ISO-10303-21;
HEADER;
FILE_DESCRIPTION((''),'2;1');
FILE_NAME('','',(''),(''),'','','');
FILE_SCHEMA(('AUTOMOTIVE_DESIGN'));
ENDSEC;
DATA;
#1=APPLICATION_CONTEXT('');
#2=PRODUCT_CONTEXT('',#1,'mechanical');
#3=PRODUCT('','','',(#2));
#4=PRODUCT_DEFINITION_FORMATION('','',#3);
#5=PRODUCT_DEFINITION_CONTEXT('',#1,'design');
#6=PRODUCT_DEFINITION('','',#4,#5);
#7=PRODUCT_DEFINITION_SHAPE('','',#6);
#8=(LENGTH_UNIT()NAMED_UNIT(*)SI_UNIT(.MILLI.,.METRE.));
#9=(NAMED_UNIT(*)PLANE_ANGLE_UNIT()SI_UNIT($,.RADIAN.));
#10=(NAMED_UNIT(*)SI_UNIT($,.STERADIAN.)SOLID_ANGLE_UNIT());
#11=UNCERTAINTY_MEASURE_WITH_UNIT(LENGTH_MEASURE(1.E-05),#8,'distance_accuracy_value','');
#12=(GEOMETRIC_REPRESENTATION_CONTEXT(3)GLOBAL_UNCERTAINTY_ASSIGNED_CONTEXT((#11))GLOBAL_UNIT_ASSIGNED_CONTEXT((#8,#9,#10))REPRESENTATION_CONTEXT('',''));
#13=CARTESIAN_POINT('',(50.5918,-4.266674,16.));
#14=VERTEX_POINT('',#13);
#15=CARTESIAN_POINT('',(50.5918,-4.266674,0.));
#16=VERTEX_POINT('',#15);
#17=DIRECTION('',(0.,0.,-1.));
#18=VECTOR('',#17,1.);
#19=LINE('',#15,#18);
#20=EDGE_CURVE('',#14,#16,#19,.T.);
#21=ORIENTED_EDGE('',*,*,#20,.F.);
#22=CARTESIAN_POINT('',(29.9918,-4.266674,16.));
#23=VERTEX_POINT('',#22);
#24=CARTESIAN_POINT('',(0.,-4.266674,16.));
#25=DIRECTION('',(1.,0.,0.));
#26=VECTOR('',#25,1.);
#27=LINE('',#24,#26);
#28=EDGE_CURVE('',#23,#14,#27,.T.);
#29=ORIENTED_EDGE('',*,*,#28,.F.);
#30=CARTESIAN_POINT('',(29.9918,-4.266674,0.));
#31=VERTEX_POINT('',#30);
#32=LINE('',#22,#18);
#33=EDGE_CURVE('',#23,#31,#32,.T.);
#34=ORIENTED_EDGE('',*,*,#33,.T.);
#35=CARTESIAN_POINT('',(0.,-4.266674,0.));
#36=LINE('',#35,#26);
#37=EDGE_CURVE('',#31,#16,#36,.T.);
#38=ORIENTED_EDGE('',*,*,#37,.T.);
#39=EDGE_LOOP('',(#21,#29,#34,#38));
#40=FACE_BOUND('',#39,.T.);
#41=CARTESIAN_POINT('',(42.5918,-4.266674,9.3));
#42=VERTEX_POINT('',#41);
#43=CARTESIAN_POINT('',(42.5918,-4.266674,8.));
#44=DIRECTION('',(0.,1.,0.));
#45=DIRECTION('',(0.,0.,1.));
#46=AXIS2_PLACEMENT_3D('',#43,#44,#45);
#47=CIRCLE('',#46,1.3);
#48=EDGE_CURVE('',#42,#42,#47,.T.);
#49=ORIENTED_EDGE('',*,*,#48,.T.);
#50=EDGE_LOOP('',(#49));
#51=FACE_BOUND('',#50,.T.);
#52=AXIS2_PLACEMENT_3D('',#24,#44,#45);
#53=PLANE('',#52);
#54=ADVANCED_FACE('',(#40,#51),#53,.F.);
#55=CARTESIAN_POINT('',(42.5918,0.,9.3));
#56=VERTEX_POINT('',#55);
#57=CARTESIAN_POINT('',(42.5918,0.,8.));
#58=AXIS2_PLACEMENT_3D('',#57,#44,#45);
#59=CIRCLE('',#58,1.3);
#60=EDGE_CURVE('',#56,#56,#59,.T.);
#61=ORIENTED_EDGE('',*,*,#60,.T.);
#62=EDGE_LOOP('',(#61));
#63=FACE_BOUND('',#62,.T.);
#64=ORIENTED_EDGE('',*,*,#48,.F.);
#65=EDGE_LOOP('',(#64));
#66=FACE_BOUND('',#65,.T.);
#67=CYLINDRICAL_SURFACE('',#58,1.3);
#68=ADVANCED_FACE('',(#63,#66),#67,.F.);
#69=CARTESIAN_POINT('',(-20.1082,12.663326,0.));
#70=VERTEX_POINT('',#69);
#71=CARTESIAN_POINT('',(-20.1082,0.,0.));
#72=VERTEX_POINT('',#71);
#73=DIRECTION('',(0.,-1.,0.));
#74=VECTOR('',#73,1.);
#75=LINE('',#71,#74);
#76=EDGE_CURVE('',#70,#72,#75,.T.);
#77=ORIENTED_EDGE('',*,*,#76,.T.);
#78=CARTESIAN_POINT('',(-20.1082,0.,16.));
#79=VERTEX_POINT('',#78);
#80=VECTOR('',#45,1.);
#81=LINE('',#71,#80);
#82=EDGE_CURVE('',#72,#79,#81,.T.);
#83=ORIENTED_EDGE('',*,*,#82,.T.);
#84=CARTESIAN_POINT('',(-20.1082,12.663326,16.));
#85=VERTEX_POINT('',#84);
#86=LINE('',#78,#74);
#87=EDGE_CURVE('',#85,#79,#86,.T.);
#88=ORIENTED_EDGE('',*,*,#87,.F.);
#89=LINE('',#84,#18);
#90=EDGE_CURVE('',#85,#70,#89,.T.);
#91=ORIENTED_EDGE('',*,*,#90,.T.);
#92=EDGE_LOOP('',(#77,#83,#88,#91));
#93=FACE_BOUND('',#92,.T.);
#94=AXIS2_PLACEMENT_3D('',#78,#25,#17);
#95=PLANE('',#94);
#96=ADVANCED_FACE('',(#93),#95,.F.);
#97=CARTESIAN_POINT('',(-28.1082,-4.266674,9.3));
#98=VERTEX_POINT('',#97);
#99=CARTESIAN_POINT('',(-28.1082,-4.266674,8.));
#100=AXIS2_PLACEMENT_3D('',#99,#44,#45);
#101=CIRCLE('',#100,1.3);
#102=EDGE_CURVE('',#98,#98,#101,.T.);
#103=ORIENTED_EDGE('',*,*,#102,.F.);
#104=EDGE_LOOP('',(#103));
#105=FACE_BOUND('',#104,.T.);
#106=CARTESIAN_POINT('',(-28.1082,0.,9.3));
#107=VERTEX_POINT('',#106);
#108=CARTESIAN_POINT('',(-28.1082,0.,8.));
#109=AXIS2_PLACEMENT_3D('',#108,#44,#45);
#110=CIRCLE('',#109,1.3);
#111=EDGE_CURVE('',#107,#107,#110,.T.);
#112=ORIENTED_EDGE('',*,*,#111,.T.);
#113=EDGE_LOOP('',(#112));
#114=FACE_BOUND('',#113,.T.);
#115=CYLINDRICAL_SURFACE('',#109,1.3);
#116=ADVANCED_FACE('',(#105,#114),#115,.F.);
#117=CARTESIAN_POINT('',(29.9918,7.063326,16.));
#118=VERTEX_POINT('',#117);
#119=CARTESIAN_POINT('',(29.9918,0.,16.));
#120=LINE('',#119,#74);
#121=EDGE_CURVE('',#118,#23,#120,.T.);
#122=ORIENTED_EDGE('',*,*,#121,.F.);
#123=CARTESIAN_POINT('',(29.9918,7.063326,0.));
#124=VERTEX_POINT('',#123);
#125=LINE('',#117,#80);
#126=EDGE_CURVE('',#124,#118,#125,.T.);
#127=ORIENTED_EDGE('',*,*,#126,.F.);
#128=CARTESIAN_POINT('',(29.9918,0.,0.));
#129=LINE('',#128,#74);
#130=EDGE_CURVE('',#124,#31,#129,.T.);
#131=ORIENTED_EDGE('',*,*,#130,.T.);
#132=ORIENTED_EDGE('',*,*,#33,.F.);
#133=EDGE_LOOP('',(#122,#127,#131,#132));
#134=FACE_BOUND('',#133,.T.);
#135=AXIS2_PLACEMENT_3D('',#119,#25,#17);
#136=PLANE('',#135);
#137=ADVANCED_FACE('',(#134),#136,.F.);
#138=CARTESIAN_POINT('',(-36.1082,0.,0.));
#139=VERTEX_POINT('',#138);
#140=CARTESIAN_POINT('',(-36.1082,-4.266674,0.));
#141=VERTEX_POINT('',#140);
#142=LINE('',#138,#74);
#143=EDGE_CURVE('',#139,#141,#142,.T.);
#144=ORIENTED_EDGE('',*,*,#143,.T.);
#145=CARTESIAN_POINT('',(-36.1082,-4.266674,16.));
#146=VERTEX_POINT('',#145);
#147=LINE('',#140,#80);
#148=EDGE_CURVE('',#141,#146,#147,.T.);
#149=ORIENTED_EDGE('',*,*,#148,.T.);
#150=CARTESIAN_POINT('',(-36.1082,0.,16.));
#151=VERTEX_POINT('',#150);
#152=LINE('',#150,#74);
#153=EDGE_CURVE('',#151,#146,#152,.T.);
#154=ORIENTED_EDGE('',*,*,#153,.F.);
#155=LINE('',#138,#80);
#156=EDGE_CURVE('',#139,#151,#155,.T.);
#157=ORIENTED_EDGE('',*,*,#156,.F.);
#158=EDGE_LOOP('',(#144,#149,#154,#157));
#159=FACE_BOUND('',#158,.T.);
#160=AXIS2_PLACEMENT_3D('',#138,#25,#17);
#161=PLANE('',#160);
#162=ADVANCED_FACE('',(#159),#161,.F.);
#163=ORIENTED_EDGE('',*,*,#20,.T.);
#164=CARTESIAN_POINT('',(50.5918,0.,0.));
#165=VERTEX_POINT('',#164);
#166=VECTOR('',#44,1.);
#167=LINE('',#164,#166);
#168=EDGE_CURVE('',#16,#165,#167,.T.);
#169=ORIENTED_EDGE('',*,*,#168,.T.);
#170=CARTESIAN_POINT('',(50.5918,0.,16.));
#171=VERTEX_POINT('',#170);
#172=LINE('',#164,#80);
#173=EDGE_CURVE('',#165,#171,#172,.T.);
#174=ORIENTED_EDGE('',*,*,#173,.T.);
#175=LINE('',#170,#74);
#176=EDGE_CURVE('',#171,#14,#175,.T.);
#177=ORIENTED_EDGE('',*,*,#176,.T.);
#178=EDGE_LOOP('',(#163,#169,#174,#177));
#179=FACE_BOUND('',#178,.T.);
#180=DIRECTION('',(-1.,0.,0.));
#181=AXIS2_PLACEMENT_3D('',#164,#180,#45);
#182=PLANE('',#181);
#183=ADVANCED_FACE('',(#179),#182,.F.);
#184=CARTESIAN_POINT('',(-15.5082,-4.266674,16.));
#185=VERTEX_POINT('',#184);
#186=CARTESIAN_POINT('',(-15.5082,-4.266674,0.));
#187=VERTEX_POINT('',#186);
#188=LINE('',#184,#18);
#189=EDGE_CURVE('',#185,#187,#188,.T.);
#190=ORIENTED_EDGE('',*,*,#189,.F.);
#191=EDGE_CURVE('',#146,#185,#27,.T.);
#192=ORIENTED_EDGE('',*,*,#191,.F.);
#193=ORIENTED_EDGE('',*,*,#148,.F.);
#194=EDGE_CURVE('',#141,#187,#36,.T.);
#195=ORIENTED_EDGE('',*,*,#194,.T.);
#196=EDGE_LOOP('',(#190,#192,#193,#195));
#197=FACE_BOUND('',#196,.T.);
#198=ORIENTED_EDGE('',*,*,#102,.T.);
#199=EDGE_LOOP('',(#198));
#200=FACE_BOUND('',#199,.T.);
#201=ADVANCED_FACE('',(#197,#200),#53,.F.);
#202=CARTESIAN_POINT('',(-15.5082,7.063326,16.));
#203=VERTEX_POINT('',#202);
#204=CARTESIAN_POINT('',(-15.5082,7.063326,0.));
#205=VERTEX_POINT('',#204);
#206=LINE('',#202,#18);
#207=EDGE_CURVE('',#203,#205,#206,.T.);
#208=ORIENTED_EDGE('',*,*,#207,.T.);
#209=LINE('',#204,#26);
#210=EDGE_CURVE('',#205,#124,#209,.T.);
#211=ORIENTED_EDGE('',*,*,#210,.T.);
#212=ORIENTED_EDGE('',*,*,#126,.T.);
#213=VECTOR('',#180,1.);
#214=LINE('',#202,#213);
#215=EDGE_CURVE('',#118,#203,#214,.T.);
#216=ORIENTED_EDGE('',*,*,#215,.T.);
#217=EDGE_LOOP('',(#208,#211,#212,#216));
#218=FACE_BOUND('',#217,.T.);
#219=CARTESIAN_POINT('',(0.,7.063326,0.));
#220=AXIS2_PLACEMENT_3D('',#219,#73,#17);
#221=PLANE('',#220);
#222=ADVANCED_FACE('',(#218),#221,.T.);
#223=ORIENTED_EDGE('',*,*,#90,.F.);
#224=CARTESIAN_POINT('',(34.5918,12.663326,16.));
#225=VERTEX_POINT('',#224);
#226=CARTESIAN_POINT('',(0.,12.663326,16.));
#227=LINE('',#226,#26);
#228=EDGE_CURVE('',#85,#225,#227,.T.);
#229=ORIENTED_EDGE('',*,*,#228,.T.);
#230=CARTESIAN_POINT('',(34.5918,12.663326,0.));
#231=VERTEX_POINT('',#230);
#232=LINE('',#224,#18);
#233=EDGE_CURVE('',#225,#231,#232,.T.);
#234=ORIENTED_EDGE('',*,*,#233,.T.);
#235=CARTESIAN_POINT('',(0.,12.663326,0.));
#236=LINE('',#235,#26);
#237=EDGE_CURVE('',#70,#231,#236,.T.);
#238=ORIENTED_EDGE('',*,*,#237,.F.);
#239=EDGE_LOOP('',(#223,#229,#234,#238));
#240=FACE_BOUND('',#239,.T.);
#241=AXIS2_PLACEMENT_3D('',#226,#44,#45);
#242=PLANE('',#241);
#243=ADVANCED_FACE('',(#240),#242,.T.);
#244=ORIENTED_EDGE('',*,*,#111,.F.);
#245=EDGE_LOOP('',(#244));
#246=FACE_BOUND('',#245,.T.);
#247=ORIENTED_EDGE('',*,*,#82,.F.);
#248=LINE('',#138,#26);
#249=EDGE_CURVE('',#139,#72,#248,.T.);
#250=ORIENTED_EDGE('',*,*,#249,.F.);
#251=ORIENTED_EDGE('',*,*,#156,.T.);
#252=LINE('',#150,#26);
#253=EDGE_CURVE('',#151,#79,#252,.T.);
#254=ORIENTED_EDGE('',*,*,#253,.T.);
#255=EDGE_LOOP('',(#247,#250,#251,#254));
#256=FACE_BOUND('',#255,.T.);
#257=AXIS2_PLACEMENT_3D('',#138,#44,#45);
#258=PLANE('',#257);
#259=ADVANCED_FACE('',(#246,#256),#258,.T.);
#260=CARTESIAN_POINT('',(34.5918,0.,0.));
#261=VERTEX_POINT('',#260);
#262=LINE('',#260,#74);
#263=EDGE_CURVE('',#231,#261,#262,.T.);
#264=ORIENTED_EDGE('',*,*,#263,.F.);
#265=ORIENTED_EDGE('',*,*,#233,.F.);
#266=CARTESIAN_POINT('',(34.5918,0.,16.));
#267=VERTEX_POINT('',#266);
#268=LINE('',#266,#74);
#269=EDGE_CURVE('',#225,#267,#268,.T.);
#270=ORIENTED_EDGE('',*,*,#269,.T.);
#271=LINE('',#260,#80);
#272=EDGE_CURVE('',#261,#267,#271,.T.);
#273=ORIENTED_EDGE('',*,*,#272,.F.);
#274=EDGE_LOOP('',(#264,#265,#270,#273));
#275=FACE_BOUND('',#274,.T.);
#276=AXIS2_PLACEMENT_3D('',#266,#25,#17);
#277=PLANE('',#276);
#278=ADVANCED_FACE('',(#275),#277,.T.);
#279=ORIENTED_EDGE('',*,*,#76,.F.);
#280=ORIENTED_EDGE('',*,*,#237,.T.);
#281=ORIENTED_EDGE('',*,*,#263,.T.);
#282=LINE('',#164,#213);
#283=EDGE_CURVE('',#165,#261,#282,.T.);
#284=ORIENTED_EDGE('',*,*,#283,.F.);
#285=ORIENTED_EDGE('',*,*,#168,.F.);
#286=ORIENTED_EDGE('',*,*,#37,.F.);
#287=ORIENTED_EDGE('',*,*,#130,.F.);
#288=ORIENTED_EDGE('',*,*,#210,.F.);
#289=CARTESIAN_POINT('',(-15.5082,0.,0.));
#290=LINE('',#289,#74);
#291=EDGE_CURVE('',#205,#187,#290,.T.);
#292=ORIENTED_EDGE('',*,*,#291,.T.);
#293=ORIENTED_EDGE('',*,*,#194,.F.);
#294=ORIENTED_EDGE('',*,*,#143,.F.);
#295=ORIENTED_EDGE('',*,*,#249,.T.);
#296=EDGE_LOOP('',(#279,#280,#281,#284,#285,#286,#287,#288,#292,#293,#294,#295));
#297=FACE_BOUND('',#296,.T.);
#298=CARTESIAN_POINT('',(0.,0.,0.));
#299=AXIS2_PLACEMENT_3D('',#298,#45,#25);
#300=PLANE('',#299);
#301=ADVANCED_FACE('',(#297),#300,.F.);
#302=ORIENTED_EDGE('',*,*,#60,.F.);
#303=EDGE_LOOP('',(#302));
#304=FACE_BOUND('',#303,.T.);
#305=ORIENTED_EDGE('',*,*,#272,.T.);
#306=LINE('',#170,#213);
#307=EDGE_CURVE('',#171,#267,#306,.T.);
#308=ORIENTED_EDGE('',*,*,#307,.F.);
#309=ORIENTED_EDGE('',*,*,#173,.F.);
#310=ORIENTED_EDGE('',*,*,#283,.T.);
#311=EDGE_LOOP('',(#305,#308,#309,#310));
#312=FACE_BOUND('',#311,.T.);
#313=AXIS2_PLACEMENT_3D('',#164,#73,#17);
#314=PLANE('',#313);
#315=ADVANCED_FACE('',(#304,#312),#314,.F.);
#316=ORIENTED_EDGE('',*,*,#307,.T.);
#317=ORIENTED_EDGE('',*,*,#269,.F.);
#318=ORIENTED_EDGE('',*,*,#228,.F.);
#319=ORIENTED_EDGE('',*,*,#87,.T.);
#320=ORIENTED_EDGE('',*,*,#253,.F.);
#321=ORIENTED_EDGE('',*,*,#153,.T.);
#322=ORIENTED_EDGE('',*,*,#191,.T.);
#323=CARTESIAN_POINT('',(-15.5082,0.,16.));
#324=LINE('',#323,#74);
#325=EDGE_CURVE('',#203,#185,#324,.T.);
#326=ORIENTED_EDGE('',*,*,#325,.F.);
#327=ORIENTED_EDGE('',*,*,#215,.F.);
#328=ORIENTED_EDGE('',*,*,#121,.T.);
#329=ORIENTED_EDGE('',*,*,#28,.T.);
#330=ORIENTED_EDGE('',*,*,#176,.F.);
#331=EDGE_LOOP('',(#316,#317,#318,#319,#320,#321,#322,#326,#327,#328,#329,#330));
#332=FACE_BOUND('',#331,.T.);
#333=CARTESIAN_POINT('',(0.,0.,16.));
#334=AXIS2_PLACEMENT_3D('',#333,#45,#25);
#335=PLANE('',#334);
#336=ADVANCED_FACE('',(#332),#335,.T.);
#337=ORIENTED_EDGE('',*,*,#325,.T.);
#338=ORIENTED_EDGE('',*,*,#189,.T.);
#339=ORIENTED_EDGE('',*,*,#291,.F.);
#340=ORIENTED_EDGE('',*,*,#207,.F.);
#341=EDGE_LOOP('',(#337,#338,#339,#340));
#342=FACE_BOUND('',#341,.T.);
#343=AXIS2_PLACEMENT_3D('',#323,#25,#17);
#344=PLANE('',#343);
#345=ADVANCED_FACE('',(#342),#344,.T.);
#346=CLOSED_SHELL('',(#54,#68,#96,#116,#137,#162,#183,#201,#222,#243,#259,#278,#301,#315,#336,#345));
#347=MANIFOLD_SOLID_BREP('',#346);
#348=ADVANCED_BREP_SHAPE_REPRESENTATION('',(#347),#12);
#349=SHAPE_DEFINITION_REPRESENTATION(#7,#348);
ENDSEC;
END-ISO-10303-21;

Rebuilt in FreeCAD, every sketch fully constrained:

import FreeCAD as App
import Part
import Sketcher
from FreeCAD import Vector
Q = App.Units.Quantity


def add_polygon(sketch, points):
    """Adds a closed chain of lines whose ends are joined by coincident constraints."""
    first, n = sketch.GeometryCount, len(points)
    for a, b in zip(points, points[1:] + points[:1]):
        sketch.addGeometry(Part.LineSegment(App.Vector(*a, 0), App.Vector(*b, 0)), False)
    for i in range(n):
        sketch.addConstraint(Sketcher.Constraint("Coincident", first + i, 2, first + (i + 1) % n, 1))

doc = App.newDocument("Part")
body = doc.addObject("PartDesign::Body", "Body")

# Sketch on XY plane
sketch1 = body.newObject("Sketcher::SketchObject", "Sketch")
sketch1.AttachmentSupport = (doc.getObject("XY_Plane"), [""])
sketch1.MapMode = "FlatFace"
add_polygon(sketch1, [(34.6, 12.7), (-20.1, 12.7), (-20.1, -4.3), (-15.5, -4.3), (-15.5, 8.1), (30, 8.1), (30, -4.3), (34.6, -4.3)])  # lines 0-7
sketch1.addConstraint([
    Sketcher.Constraint("Horizontal", 0),
    Sketcher.Constraint("Vertical", 1),
    Sketcher.Constraint("Horizontal", 2),
    Sketcher.Constraint("Vertical", 3),
    Sketcher.Constraint("Horizontal", 4),
    Sketcher.Constraint("Vertical", 5),
    Sketcher.Constraint("Horizontal", 6),
    Sketcher.Constraint("Vertical", 7),
    Sketcher.Constraint("Horizontal", 2, 2, 5, 2),
    Sketcher.Constraint("Equal", 2, 6),
    Sketcher.Constraint("DistanceX", 0, 2, 0, 1, Q("54.7 mm")),
    Sketcher.Constraint("DistanceX", 2, 1, 2, 2, Q("4.6 mm")),
    Sketcher.Constraint("DistanceY", 1, 2, 1, 1, Q("16.93 mm")),
    Sketcher.Constraint("DistanceY", 3, 1, 3, 2, Q("12.33 mm")),
    Sketcher.Constraint("DistanceX", 0, 2, -1, 1, Q("20.1082 mm")),
    Sketcher.Constraint("DistanceY", -1, 1, 0, 2, Q("12.663326 mm")),
])
pad1 = body.newObject("PartDesign::Pad", "Pad")
pad1.Profile = sketch1
pad1.Length = 16

# Sketch on YZ plane
sketch2 = body.newObject("Sketcher::SketchObject", "Sketch001")
sketch2.AttachmentSupport = (doc.getObject("YZ_Plane"), [""])
sketch2.MapMode = "FlatFace"
sketch2.AttachmentOffset = App.Placement(Vector(0, 0, -20.1082), App.Rotation())
add_polygon(sketch2, [(0, 0), (-4.3, 0), (-4.3, 16), (0, 16)])  # lines 0-3
sketch2.addConstraint([
    Sketcher.Constraint("Horizontal", 0),
    Sketcher.Constraint("Vertical", 1),
    Sketcher.Constraint("Horizontal", 2),
    Sketcher.Constraint("Vertical", 3),
    Sketcher.Constraint("Coincident", 3, 2, -1, 1),
    Sketcher.Constraint("DistanceY", 1, 1, 1, 2, Q("16 mm")),
    Sketcher.Constraint("DistanceX", 0, 2, 0, 1, Q("4.266674 mm")),
])
pad2 = body.newObject("PartDesign::Pad", "Pad001")
pad2.Profile = sketch2
pad2.Length = 16
pad2.Reversed = True

# Sketch on YZ plane
sketch3 = body.newObject("Sketcher::SketchObject", "Sketch002")
sketch3.AttachmentSupport = (doc.getObject("YZ_Plane"), [""])
sketch3.MapMode = "FlatFace"
sketch3.AttachmentOffset = App.Placement(Vector(0, 0, 34.5918), App.Rotation())
add_polygon(sketch3, [(0, 16), (-4.3, 16), (-4.3, 0), (0, 0)])  # lines 0-3
sketch3.addConstraint([
    Sketcher.Constraint("Horizontal", 0),
    Sketcher.Constraint("Vertical", 1),
    Sketcher.Constraint("Horizontal", 2),
    Sketcher.Constraint("Vertical", 3),
    Sketcher.Constraint("Coincident", 2, 2, -1, 1),
    Sketcher.Constraint("DistanceY", 1, 2, 1, 1, Q("16 mm")),
    Sketcher.Constraint("DistanceX", 0, 2, 0, 1, Q("4.266674 mm")),
])
pad3 = body.newObject("PartDesign::Pad", "Pad002")
pad3.Profile = sketch3
pad3.Length = 16

# Sketch on XZ plane
sketch4 = body.newObject("Sketcher::SketchObject", "Sketch003")
sketch4.AttachmentSupport = (doc.getObject("XZ_Plane"), [""])
sketch4.MapMode = "FlatFace"
sketch4.addGeometry(Part.Circle(Vector(42.6, 8, 0), Vector(0, 0, 1), 1.3), False)
sketch4.addConstraint([
    Sketcher.Constraint("Diameter", 0, Q("2.6 mm")),
    Sketcher.Constraint("DistanceY", -1, 1, 0, 3, Q("8 mm")),
    Sketcher.Constraint("DistanceX", -1, 1, 0, 3, Q("42.5918 mm")),
])
doc.recompute()
hole = body.newObject("PartDesign::Hole", "Hole")
hole.Profile = sketch4
hole.ThreadType = "None"
hole.Diameter = 2.6
hole.DepthType = "ThroughAll"
hole.Reversed = True

# Sketch on XZ plane
sketch5 = body.newObject("Sketcher::SketchObject", "Sketch004")
sketch5.AttachmentSupport = (doc.getObject("XZ_Plane"), [""])
sketch5.MapMode = "FlatFace"
sketch5.addGeometry(Part.Circle(Vector(-28.1, 8, 0), Vector(0, 0, 1), 1.3), False)
sketch5.addConstraint([
    Sketcher.Constraint("Diameter", 0, Q("2.6 mm")),
    Sketcher.Constraint("DistanceY", -1, 1, 0, 3, Q("8 mm")),
    Sketcher.Constraint("DistanceX", 0, 3, -1, 1, Q("28.1082 mm")),
])
doc.recompute()
hole2 = body.newObject("PartDesign::Hole", "Hole001")
hole2.Profile = sketch5
hole2.ThreadType = "None"
hole2.Diameter = 2.6
hole2.DepthType = "ThroughAll"
hole2.Reversed = True

# Sketch on XZ plane
sketch6 = body.newObject("Sketcher::SketchObject", "Sketch005")
sketch6.AttachmentSupport = (doc.getObject("XZ_Plane"), [""])
sketch6.MapMode = "FlatFace"
sketch6.AttachmentOffset = App.Placement(Vector(0, 0, -8.063326), App.Rotation())
add_polygon(sketch6, [(-16, 16), (-16, 0), (30, 0), (30, 16)])  # lines 0-3
sketch6.addConstraint([
    Sketcher.Constraint("Vertical", 0),
    Sketcher.Constraint("Horizontal", 1),
    Sketcher.Constraint("Vertical", 2),
    Sketcher.Constraint("Horizontal", 3),
    Sketcher.Constraint("PointOnObject", 0, 2, -1),
    Sketcher.Constraint("DistanceY", 0, 2, 0, 1, Q("16 mm")),
    Sketcher.Constraint("DistanceX", 1, 1, 1, 2, Q("45.5 mm")),
    Sketcher.Constraint("DistanceX", 0, 2, -1, 1, Q("15.5082 mm")),
])
pad4 = body.newObject("PartDesign::Pad", "Pad003")
pad4.Profile = sketch6
pad4.Length = 1

doc.recompute()
